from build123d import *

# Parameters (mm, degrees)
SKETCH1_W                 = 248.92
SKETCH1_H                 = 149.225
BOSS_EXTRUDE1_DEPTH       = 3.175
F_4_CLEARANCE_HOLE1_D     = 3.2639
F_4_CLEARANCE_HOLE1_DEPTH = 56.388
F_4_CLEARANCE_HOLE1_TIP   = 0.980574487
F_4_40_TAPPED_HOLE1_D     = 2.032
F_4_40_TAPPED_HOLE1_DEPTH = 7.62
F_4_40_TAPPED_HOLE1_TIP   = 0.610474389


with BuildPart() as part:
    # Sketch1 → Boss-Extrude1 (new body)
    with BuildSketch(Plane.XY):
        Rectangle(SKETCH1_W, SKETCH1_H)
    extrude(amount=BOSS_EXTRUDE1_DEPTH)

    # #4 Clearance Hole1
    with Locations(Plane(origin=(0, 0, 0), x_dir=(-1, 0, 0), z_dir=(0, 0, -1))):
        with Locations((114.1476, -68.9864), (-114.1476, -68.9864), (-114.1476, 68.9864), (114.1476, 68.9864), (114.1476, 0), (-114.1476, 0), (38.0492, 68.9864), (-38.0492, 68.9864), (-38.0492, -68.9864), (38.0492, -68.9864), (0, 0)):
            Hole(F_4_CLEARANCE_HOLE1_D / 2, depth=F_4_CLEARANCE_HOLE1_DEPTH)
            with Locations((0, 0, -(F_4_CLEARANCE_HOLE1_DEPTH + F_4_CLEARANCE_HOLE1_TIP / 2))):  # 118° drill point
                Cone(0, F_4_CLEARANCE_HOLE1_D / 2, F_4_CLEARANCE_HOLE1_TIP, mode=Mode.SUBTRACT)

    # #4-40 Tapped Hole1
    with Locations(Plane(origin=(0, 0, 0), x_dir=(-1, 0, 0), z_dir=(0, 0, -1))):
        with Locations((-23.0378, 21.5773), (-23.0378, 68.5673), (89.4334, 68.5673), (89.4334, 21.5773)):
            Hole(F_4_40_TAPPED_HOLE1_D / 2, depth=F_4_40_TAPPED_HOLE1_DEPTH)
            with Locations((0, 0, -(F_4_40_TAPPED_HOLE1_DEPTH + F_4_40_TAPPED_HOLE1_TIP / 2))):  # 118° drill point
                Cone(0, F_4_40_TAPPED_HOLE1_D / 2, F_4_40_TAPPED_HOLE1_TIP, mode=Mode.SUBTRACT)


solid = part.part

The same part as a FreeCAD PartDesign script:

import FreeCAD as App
import Part
import Sketcher
from FreeCAD import Vector
Q = App.Units.Quantity

doc = App.newDocument("Part")
params = doc.addObject("Spreadsheet::Sheet", "Params")
for row, (alias, value) in enumerate([
    ("sketch1_width", "9.8 in"),
    ("sketch1_height", "5.875 in"),
    ("pad1_length", "0.125 in"),
    ("hole_diameter", "0.1285 in"),
    ("hole_depth", "2.22 in"),
    ("sketch3_diameter", "0.08 in"),
    ("hole2_diameter", "0.08 in"),
    ("hole2_depth", "0.3 in"),
], start=1):
    params.set(f"A{row}", alias)
    params.set(f"B{row}", "=" + value)
    params.setAlias(f"B{row}", alias)

body = doc.addObject("PartDesign::Body", "Body")

sketch1 = body.newObject("Sketcher::SketchObject", "Sketch")
sketch1.AttachmentSupport = (doc.getObject("XY_Plane"), [""])
sketch1.MapMode = "FlatFace"
sketch1.addGeometry([
    Part.LineSegment(Vector(-124, 75, 0), Vector(-124, -75, 0)),
    Part.LineSegment(Vector(-124, -75, 0), Vector(124, -75, 0)),
    Part.LineSegment(Vector(124, -75, 0), Vector(124, 75, 0)),
    Part.LineSegment(Vector(124, 75, 0), Vector(-124, 75, 0)),
], False)
sketch1.addConstraint([
    Sketcher.Constraint("Coincident", 0, 2, 1, 1),
    Sketcher.Constraint("Coincident", 1, 2, 2, 1),
    Sketcher.Constraint("Coincident", 2, 2, 3, 1),
    Sketcher.Constraint("Coincident", 3, 2, 0, 1),
    Sketcher.Constraint("Vertical", 0),
    Sketcher.Constraint("Horizontal", 1),
    Sketcher.Constraint("Vertical", 2),
    Sketcher.Constraint("Horizontal", 3),
    Sketcher.Constraint("Symmetric", 0, 2, 2, 2, -1, 1),
    Sketcher.Constraint("DistanceX", 1, 1, 1, 2, Q("9.8 in")),
    Sketcher.Constraint("DistanceY", 0, 2, 0, 1, Q("5.875 in")),
])
sketch1.setExpression("Constraints[9]", "Params.sketch1_width")
sketch1.setExpression("Constraints[10]", "Params.sketch1_height")
pad1 = body.newObject("PartDesign::Pad", "Pad")
pad1.Profile = sketch1
pad1.setExpression("Length", "Params.pad1_length")

sketch2 = body.newObject("Sketcher::SketchObject", "Sketch001")
sketch2.AttachmentSupport = (doc.getObject("XY_Plane"), [""])
sketch2.MapMode = "FlatFace"
sketch2.addGeometry([
    Part.Circle(Vector(-114.1, -69, 0), Vector(0, 0, 1), 1.6),
    Part.Circle(Vector(114.1, -69, 0), Vector(0, 0, 1), 1.6),
    Part.Circle(Vector(114.1, 69, 0), Vector(0, 0, 1), 1.6),
    Part.Circle(Vector(-114.1, 69, 0), Vector(0, 0, 1), 1.6),
    Part.Circle(Vector(-114.1, 0, 0), Vector(0, 0, 1), 1.6),
    Part.Circle(Vector(114.1, 0, 0), Vector(0, 0, 1), 1.6),
    Part.Circle(Vector(-38, 69, 0), Vector(0, 0, 1), 1.6),
    Part.Circle(Vector(38, 69, 0), Vector(0, 0, 1), 1.6),
    Part.Circle(Vector(38, -69, 0), Vector(0, 0, 1), 1.6),
    Part.Circle(Vector(-38, -69, 0), Vector(0, 0, 1), 1.6),
    Part.Circle(Vector(0, 0, 0), Vector(0, 0, 1), 1.6),
], False)
sketch2.addConstraint([
    Sketcher.Constraint("Coincident", 10, 3, -1, 1),
    Sketcher.Constraint("Equal", 0, 1),
    Sketcher.Constraint("Equal", 1, 2),
    Sketcher.Constraint("Equal", 2, 3),
    Sketcher.Constraint("Equal", 3, 4),
    Sketcher.Constraint("Equal", 4, 5),
    Sketcher.Constraint("Equal", 5, 6),
    Sketcher.Constraint("Equal", 6, 7),
    Sketcher.Constraint("Equal", 7, 8),
    Sketcher.Constraint("Equal", 8, 9),
    Sketcher.Constraint("Equal", 9, 10),
    Sketcher.Constraint("Symmetric", 0, 3, 2, 3, -1, 1),
    Sketcher.Constraint("Symmetric", 1, 3, 3, 3, -1, 1),
    Sketcher.Constraint("Symmetric", 4, 3, 5, 3, -1, 1),
    Sketcher.Constraint("Symmetric", 6, 3, 8, 3, -1, 1),
    Sketcher.Constraint("Symmetric", 7, 3, 9, 3, -1, 1),
    Sketcher.Constraint("Symmetric", 0, 3, 1, 3, -2),
    Sketcher.Constraint("Symmetric", 6, 3, 7, 3, -2),
    Sketcher.Constraint("PointOnObject", 4, 3, -1),
    Sketcher.Constraint("Horizontal", 3, 3, 6, 3),
    Sketcher.Constraint("Vertical", 3, 3, 4, 3),
    Sketcher.Constraint("Diameter", 0, Q("0.1285 in")),
    Sketcher.Constraint("DistanceX", 0, 3, -1, 1, Q("4.494 in")),
    Sketcher.Constraint("DistanceY", 0, 3, -1, 1, Q("2.716 in")),
    Sketcher.Constraint("DistanceX", 6, 3, -1, 1, Q("1.498 in")),
])
doc.recompute()
hole = body.newObject("PartDesign::Hole", "Hole")
hole.Profile = sketch2
hole.ThreadType = "None"
hole.setExpression("Diameter", "Params.hole_diameter")
hole.DepthType = "Dimension"
hole.setExpression("Depth", "Params.hole_depth")
hole.DrillPoint = "Angled"
hole.DrillPointAngle = 118
hole.Reversed = True

sketch3 = body.newObject("Sketcher::SketchObject", "Sketch002")
sketch3.AttachmentSupport = (doc.getObject("XY_Plane"), [""])
sketch3.MapMode = "FlatFace"
sketch3.addGeometry([
    Part.Circle(Vector(23, 21.6, 0), Vector(0, 0, 1), 1),
    Part.Circle(Vector(23, 68.6, 0), Vector(0, 0, 1), 1),
    Part.Circle(Vector(-89.4, 68.6, 0), Vector(0, 0, 1), 1),
    Part.Circle(Vector(-89.4, 21.6, 0), Vector(0, 0, 1), 1),
], False)
sketch3.addConstraint([
    Sketcher.Constraint("Equal", 0, 1),
    Sketcher.Constraint("Equal", 1, 2),
    Sketcher.Constraint("Equal", 2, 3),
    Sketcher.Constraint("Horizontal", 1, 3, 2, 3),
    Sketcher.Constraint("Horizontal", 0, 3, 3, 3),
    Sketcher.Constraint("Vertical", 0, 3, 1, 3),
    Sketcher.Constraint("Vertical", 2, 3, 3, 3),
    Sketcher.Constraint("Diameter", 0, Q("0.08 in")),
    Sketcher.Constraint("DistanceY", 0, 3, 1, 3, Q("1.85 in")),
    Sketcher.Constraint("DistanceX", -1, 1, 0, 3, Q("0.907 in")),
    Sketcher.Constraint("DistanceX", 2, 3, -1, 1, Q("3.521 in")),
    Sketcher.Constraint("DistanceY", -1, 1, 0, 3, Q("0.8495 in")),
])
sketch3.setExpression("Constraints[7]", "Params.sketch3_diameter")
doc.recompute()
hole2 = body.newObject("PartDesign::Hole", "Hole001")
hole2.Profile = sketch3
hole2.ThreadType = "None"
hole2.setExpression("Diameter", "Params.hole2_diameter")
hole2.DepthType = "Dimension"
hole2.setExpression("Depth", "Params.hole2_depth")
hole2.DrillPoint = "Angled"
hole2.DrillPointAngle = 118
hole2.Reversed = True

doc.recompute()
